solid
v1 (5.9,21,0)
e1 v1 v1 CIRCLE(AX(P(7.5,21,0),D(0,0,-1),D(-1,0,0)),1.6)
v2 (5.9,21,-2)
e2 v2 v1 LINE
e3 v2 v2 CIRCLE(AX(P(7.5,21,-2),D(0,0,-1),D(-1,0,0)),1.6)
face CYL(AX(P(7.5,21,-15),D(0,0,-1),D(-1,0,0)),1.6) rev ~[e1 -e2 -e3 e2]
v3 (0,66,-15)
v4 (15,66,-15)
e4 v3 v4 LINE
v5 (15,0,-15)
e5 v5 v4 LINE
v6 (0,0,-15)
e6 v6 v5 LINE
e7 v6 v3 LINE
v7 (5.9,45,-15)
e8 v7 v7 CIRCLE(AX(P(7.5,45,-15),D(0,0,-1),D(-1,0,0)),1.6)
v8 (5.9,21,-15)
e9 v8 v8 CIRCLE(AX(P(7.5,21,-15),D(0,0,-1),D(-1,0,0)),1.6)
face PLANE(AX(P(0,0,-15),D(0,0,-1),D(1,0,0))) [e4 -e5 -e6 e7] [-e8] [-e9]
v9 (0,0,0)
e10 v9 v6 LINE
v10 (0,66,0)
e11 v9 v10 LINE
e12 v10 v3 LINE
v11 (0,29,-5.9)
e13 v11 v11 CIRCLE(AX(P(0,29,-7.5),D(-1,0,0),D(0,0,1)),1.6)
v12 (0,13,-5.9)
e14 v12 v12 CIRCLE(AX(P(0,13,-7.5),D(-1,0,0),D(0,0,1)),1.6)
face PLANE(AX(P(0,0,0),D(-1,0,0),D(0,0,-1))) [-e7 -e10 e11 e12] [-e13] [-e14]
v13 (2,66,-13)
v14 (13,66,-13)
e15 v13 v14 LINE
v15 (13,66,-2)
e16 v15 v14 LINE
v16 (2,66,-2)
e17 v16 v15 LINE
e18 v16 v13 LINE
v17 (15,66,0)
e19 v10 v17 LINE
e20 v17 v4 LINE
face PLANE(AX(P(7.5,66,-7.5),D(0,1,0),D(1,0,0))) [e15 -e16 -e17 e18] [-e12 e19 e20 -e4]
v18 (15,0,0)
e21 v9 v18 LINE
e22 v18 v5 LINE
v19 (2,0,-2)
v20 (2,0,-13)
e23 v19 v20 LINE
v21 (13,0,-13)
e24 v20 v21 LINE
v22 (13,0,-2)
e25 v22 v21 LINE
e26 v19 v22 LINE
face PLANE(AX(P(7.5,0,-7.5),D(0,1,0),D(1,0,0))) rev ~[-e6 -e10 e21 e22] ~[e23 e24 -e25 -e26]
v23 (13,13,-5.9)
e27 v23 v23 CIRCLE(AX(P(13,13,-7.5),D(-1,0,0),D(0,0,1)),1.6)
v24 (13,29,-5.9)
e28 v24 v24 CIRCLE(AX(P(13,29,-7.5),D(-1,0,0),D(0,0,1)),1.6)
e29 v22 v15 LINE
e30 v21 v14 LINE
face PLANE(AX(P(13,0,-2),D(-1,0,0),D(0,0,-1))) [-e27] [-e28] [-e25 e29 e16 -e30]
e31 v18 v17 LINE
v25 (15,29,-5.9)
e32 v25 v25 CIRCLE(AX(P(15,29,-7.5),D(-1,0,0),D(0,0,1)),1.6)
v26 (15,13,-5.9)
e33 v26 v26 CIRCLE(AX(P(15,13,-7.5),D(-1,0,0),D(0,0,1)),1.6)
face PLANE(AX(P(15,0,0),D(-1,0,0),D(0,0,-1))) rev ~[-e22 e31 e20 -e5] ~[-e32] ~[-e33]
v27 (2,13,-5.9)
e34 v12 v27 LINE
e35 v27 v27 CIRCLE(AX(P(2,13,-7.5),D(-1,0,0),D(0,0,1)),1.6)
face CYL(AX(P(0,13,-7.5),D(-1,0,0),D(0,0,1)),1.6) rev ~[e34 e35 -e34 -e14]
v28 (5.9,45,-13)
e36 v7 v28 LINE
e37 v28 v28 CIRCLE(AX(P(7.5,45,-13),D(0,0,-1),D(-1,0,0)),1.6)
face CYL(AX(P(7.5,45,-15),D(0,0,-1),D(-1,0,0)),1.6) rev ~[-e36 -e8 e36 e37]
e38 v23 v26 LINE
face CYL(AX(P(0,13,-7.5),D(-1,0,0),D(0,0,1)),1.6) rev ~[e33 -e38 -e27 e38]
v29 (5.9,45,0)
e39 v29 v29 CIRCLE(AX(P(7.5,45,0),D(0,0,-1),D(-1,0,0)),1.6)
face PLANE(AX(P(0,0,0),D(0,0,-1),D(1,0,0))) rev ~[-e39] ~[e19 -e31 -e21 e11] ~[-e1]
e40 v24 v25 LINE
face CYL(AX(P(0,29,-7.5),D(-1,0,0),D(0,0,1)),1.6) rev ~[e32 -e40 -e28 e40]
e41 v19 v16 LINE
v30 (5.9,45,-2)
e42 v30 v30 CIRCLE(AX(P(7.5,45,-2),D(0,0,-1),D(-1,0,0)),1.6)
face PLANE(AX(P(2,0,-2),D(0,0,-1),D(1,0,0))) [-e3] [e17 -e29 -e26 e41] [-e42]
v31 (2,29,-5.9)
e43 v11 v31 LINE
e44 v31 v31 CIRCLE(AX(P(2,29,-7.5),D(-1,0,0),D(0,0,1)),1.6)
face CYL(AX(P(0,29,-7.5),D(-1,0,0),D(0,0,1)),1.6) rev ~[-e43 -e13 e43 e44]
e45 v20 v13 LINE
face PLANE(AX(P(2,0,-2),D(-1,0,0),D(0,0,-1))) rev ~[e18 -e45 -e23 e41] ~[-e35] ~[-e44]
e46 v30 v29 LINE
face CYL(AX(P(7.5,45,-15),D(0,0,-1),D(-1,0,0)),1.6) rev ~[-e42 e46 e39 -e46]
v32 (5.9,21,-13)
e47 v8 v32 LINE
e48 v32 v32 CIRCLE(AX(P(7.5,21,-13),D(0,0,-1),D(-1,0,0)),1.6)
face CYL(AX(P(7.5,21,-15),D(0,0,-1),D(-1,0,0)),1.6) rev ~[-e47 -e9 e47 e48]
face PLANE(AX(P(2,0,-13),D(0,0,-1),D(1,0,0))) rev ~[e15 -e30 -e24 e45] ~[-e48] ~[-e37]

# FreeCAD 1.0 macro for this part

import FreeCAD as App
import Part
import Sketcher
from FreeCAD import Vector
Q = App.Units.Quantity

doc = App.newDocument("Part")
params = doc.addObject("Spreadsheet::Sheet", "Params")
for row, (alias, value) in enumerate([
    ("sketch1_width", "15 mm"),
    ("sketch1_width2", "11 mm"),
    ("pad1_length", "66 mm"),
    ("sketch2_diameter", "3.2 mm"),
    ("sketch3_diameter", "3.2 mm"),
], start=1):
    params.set(f"A{row}", alias)
    params.set(f"B{row}", "=" + value)
    params.setAlias(f"B{row}", alias)

body = doc.addObject("PartDesign::Body", "Body")

# Sketch on XZ plane
sketch1 = body.newObject("Sketcher::SketchObject", "Sketch")
sketch1.AttachmentSupport = (doc.getObject("XZ_Plane"), [""])
sketch1.MapMode = "FlatFace"
sketch1.addGeometry(Part.LineSegment(Vector(0, -15, 0), Vector(0, 0, 0)), False)
sketch1.addGeometry(Part.LineSegment(Vector(0, 0, 0), Vector(15, 0, 0)), False)
sketch1.addGeometry(Part.LineSegment(Vector(15, 0, 0), Vector(15, -15, 0)), False)
sketch1.addGeometry(Part.LineSegment(Vector(15, -15, 0), Vector(0, -15, 0)), False)
sketch1.addGeometry(Part.LineSegment(Vector(13, -2, 0), Vector(2, -2, 0)), False)
sketch1.addGeometry(Part.LineSegment(Vector(2, -2, 0), Vector(2, -13, 0)), False)
sketch1.addGeometry(Part.LineSegment(Vector(2, -13, 0), Vector(13, -13, 0)), False)
sketch1.addGeometry(Part.LineSegment(Vector(13, -13, 0), Vector(13, -2, 0)), False)
sketch1.addConstraint(Sketcher.Constraint("Coincident", 0, 2, 1, 1))
sketch1.addConstraint(Sketcher.Constraint("Coincident", 1, 2, 2, 1))
sketch1.addConstraint(Sketcher.Constraint("Coincident", 2, 2, 3, 1))
sketch1.addConstraint(Sketcher.Constraint("Coincident", 3, 2, 0, 1))
sketch1.addConstraint(Sketcher.Constraint("Coincident", 4, 2, 5, 1))
sketch1.addConstraint(Sketcher.Constraint("Coincident", 5, 2, 6, 1))
sketch1.addConstraint(Sketcher.Constraint("Coincident", 6, 2, 7, 1))
sketch1.addConstraint(Sketcher.Constraint("Coincident", 7, 2, 4, 1))
sketch1.addConstraint(Sketcher.Constraint("Vertical", 0))
sketch1.addConstraint(Sketcher.Constraint("Horizontal", 1))
sketch1.addConstraint(Sketcher.Constraint("Vertical", 2))
sketch1.addConstraint(Sketcher.Constraint("Horizontal", 3))
sketch1.addConstraint(Sketcher.Constraint("Horizontal", 4))
sketch1.addConstraint(Sketcher.Constraint("Vertical", 5))
sketch1.addConstraint(Sketcher.Constraint("Horizontal", 6))
sketch1.addConstraint(Sketcher.Constraint("Vertical", 7))
sketch1.addConstraint(Sketcher.Constraint("Coincident", 0, 2, -1, 1))
sketch1.addConstraint(Sketcher.Constraint("Equal", 3, 0))
sketch1.addConstraint(Sketcher.Constraint("Equal", 6, 5))
sketch1.addConstraint(Sketcher.Constraint("DistanceX", 1, 1, 1, 2, Q("15 mm")))
sketch1.addConstraint(Sketcher.Constraint("DistanceX", 4, 2, 4, 1, Q("11 mm")))
sketch1.addConstraint(Sketcher.Constraint("DistanceX", -1, 1, 4, 2, Q("2 mm")))
sketch1.addConstraint(Sketcher.Constraint("DistanceY", 4, 2, -1, 1, Q("2 mm")))
sketch1.setExpression("Constraints[19]", "Params.sketch1_width")
sketch1.setExpression("Constraints[20]", "Params.sketch1_width2")
pad1 = body.newObject("PartDesign::Pad", "Pad")
pad1.Profile = sketch1
pad1.setExpression("Length", "Params.pad1_length")
pad1.Reversed = True

# Sketch on XY plane
sketch2 = body.newObject("Sketcher::SketchObject", "Sketch001")
sketch2.AttachmentSupport = (doc.getObject("XY_Plane"), [""])
sketch2.MapMode = "FlatFace"
sketch2.AttachmentOffset = App.Placement(Vector(0, 0, -15), App.Rotation())
sketch2.addGeometry(Part.Circle(Vector(7.5, 21, 0), Vector(0, 0, 1), 1.6), False)
sketch2.addGeometry(Part.Circle(Vector(7.5, 45, 0), Vector(0, 0, 1), 1.6), False)
sketch2.addConstraint(Sketcher.Constraint("Equal", 0, 1))
sketch2.addConstraint(Sketcher.Constraint("Vertical", 0, 3, 1, 3))
sketch2.addConstraint(Sketcher.Constraint("Diameter", 0, Q("3.2 mm")))
sketch2.addConstraint(Sketcher.Constraint("DistanceY", -1, 1, 0, 3, Q("21 mm")))
sketch2.addConstraint(Sketcher.Constraint("DistanceY", -1, 1, 1, 3, Q("45 mm")))
sketch2.addConstraint(Sketcher.Constraint("DistanceX", -1, 1, 0, 3, Q("7.5 mm")))
sketch2.setExpression("Constraints[2]", "Params.sketch2_diameter")
pocket1 = body.newObject("PartDesign::Pocket", "Pocket")
pocket1.Profile = sketch2
pocket1.Type = "ThroughAll"
pocket1.Reversed = True

# Sketch on YZ plane
sketch3 = body.newObject("Sketcher::SketchObject", "Sketch002")
sketch3.AttachmentSupport = (doc.getObject("YZ_Plane"), [""])
sketch3.MapMode = "FlatFace"
sketch3.addGeometry(Part.Circle(Vector(13, -7.5, 0), Vector(0, 0, 1), 1.6), False)
sketch3.addGeometry(Part.Circle(Vector(29, -7.5, 0), Vector(0, 0, 1), 1.6), False)
sketch3.addConstraint(Sketcher.Constraint("Equal", 0, 1))
sketch3.addConstraint(Sketcher.Constraint("Horizontal", 0, 3, 1, 3))
sketch3.addConstraint(Sketcher.Constraint("Diameter", 0, Q("3.2 mm")))
sketch3.addConstraint(Sketcher.Constraint("DistanceX", -1, 1, 0, 3, Q("13 mm")))
sketch3.addConstraint(Sketcher.Constraint("DistanceX", -1, 1, 1, 3, Q("29 mm")))
sketch3.addConstraint(Sketcher.Constraint("DistanceY", 0, 3, -1, 1, Q("7.5 mm")))
sketch3.setExpression("Constraints[2]", "Params.sketch3_diameter")
pocket2 = body.newObject("PartDesign::Pocket", "Pocket001")
pocket2.Profile = sketch3
pocket2.Type = "ThroughAll"
pocket2.Reversed = True

doc.recompute()
